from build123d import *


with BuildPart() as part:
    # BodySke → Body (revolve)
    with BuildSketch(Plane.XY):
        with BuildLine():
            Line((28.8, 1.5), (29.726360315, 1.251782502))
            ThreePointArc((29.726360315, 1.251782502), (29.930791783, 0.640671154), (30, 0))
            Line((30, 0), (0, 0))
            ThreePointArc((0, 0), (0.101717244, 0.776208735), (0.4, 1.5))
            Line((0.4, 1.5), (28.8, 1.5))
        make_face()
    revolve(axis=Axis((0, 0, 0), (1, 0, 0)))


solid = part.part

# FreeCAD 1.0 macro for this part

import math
import FreeCAD as App
import Part
import Sketcher
from FreeCAD import Vector
Q = App.Units.Quantity

doc = App.newDocument("Part")
body = doc.addObject("PartDesign::Body", "Body")

# Sketch on XY plane
sketch1 = body.newObject("Sketcher::SketchObject", "Sketch")
sketch1.AttachmentSupport = (doc.getObject("XY_Plane"), [""])
sketch1.MapMode = "FlatFace"
sketch1.addGeometry([
    Part.LineSegment(Vector(29.72636, 1.251783, 0), Vector(28.8, 1.5, 0)),  # 0
    Part.LineSegment(Vector(28.8, 1.5, 0), Vector(0.4, 1.5, 0)),  # 1
    Part.ArcOfCircle(Part.Circle(Vector(3.0125, 0, 0), Vector(0, 0, 1), 3.0125), math.radians(150.137166), math.radians(180)),  # 2
    Part.LineSegment(Vector(0, 0, 0), Vector(30, 0, 0)),  # 3
    Part.ArcOfCircle(Part.Circle(Vector(27, 0, 0), Vector(0, 0, 1), 3), math.radians(0), math.radians(24.661773)),  # 4
], False)
sketch1.addConstraint([
    Sketcher.Constraint("Coincident", 0, 2, 1, 1),
    Sketcher.Constraint("Coincident", 1, 2, 2, 1),
    Sketcher.Constraint("Coincident", 2, 2, 3, 1),
    Sketcher.Constraint("Coincident", 3, 2, 4, 1),
    Sketcher.Constraint("Coincident", 4, 2, 0, 1),
    Sketcher.Constraint("Horizontal", 1),
    Sketcher.Constraint("Horizontal", 3),
    Sketcher.Constraint("Coincident", 2, 2, -1, 1),
    Sketcher.Constraint("PointOnObject", 2, 3, -1),
    Sketcher.Constraint("PointOnObject", 4, 3, -1),
    Sketcher.Constraint("Radius", 4, Q("3 mm")),
    Sketcher.Constraint("DistanceX", 3, 1, 3, 2, Q("30 mm")),
    Sketcher.Constraint("Angle", 0, Q("165 deg")),
    Sketcher.Constraint("DistanceX", 1, 2, 1, 1, Q("28.4 mm")),
    Sketcher.Constraint("DistanceX", -1, 1, 0, 2, Q("28.8 mm")),
    Sketcher.Constraint("DistanceY", -1, 1, 0, 2, Q("1.5 mm")),
])
revolution = body.newObject("PartDesign::Revolution", "Revolution")
revolution.Profile = sketch1
revolution.ReferenceAxis = (sketch1, ["H_Axis"])
revolution.Angle = 360

doc.recompute()
